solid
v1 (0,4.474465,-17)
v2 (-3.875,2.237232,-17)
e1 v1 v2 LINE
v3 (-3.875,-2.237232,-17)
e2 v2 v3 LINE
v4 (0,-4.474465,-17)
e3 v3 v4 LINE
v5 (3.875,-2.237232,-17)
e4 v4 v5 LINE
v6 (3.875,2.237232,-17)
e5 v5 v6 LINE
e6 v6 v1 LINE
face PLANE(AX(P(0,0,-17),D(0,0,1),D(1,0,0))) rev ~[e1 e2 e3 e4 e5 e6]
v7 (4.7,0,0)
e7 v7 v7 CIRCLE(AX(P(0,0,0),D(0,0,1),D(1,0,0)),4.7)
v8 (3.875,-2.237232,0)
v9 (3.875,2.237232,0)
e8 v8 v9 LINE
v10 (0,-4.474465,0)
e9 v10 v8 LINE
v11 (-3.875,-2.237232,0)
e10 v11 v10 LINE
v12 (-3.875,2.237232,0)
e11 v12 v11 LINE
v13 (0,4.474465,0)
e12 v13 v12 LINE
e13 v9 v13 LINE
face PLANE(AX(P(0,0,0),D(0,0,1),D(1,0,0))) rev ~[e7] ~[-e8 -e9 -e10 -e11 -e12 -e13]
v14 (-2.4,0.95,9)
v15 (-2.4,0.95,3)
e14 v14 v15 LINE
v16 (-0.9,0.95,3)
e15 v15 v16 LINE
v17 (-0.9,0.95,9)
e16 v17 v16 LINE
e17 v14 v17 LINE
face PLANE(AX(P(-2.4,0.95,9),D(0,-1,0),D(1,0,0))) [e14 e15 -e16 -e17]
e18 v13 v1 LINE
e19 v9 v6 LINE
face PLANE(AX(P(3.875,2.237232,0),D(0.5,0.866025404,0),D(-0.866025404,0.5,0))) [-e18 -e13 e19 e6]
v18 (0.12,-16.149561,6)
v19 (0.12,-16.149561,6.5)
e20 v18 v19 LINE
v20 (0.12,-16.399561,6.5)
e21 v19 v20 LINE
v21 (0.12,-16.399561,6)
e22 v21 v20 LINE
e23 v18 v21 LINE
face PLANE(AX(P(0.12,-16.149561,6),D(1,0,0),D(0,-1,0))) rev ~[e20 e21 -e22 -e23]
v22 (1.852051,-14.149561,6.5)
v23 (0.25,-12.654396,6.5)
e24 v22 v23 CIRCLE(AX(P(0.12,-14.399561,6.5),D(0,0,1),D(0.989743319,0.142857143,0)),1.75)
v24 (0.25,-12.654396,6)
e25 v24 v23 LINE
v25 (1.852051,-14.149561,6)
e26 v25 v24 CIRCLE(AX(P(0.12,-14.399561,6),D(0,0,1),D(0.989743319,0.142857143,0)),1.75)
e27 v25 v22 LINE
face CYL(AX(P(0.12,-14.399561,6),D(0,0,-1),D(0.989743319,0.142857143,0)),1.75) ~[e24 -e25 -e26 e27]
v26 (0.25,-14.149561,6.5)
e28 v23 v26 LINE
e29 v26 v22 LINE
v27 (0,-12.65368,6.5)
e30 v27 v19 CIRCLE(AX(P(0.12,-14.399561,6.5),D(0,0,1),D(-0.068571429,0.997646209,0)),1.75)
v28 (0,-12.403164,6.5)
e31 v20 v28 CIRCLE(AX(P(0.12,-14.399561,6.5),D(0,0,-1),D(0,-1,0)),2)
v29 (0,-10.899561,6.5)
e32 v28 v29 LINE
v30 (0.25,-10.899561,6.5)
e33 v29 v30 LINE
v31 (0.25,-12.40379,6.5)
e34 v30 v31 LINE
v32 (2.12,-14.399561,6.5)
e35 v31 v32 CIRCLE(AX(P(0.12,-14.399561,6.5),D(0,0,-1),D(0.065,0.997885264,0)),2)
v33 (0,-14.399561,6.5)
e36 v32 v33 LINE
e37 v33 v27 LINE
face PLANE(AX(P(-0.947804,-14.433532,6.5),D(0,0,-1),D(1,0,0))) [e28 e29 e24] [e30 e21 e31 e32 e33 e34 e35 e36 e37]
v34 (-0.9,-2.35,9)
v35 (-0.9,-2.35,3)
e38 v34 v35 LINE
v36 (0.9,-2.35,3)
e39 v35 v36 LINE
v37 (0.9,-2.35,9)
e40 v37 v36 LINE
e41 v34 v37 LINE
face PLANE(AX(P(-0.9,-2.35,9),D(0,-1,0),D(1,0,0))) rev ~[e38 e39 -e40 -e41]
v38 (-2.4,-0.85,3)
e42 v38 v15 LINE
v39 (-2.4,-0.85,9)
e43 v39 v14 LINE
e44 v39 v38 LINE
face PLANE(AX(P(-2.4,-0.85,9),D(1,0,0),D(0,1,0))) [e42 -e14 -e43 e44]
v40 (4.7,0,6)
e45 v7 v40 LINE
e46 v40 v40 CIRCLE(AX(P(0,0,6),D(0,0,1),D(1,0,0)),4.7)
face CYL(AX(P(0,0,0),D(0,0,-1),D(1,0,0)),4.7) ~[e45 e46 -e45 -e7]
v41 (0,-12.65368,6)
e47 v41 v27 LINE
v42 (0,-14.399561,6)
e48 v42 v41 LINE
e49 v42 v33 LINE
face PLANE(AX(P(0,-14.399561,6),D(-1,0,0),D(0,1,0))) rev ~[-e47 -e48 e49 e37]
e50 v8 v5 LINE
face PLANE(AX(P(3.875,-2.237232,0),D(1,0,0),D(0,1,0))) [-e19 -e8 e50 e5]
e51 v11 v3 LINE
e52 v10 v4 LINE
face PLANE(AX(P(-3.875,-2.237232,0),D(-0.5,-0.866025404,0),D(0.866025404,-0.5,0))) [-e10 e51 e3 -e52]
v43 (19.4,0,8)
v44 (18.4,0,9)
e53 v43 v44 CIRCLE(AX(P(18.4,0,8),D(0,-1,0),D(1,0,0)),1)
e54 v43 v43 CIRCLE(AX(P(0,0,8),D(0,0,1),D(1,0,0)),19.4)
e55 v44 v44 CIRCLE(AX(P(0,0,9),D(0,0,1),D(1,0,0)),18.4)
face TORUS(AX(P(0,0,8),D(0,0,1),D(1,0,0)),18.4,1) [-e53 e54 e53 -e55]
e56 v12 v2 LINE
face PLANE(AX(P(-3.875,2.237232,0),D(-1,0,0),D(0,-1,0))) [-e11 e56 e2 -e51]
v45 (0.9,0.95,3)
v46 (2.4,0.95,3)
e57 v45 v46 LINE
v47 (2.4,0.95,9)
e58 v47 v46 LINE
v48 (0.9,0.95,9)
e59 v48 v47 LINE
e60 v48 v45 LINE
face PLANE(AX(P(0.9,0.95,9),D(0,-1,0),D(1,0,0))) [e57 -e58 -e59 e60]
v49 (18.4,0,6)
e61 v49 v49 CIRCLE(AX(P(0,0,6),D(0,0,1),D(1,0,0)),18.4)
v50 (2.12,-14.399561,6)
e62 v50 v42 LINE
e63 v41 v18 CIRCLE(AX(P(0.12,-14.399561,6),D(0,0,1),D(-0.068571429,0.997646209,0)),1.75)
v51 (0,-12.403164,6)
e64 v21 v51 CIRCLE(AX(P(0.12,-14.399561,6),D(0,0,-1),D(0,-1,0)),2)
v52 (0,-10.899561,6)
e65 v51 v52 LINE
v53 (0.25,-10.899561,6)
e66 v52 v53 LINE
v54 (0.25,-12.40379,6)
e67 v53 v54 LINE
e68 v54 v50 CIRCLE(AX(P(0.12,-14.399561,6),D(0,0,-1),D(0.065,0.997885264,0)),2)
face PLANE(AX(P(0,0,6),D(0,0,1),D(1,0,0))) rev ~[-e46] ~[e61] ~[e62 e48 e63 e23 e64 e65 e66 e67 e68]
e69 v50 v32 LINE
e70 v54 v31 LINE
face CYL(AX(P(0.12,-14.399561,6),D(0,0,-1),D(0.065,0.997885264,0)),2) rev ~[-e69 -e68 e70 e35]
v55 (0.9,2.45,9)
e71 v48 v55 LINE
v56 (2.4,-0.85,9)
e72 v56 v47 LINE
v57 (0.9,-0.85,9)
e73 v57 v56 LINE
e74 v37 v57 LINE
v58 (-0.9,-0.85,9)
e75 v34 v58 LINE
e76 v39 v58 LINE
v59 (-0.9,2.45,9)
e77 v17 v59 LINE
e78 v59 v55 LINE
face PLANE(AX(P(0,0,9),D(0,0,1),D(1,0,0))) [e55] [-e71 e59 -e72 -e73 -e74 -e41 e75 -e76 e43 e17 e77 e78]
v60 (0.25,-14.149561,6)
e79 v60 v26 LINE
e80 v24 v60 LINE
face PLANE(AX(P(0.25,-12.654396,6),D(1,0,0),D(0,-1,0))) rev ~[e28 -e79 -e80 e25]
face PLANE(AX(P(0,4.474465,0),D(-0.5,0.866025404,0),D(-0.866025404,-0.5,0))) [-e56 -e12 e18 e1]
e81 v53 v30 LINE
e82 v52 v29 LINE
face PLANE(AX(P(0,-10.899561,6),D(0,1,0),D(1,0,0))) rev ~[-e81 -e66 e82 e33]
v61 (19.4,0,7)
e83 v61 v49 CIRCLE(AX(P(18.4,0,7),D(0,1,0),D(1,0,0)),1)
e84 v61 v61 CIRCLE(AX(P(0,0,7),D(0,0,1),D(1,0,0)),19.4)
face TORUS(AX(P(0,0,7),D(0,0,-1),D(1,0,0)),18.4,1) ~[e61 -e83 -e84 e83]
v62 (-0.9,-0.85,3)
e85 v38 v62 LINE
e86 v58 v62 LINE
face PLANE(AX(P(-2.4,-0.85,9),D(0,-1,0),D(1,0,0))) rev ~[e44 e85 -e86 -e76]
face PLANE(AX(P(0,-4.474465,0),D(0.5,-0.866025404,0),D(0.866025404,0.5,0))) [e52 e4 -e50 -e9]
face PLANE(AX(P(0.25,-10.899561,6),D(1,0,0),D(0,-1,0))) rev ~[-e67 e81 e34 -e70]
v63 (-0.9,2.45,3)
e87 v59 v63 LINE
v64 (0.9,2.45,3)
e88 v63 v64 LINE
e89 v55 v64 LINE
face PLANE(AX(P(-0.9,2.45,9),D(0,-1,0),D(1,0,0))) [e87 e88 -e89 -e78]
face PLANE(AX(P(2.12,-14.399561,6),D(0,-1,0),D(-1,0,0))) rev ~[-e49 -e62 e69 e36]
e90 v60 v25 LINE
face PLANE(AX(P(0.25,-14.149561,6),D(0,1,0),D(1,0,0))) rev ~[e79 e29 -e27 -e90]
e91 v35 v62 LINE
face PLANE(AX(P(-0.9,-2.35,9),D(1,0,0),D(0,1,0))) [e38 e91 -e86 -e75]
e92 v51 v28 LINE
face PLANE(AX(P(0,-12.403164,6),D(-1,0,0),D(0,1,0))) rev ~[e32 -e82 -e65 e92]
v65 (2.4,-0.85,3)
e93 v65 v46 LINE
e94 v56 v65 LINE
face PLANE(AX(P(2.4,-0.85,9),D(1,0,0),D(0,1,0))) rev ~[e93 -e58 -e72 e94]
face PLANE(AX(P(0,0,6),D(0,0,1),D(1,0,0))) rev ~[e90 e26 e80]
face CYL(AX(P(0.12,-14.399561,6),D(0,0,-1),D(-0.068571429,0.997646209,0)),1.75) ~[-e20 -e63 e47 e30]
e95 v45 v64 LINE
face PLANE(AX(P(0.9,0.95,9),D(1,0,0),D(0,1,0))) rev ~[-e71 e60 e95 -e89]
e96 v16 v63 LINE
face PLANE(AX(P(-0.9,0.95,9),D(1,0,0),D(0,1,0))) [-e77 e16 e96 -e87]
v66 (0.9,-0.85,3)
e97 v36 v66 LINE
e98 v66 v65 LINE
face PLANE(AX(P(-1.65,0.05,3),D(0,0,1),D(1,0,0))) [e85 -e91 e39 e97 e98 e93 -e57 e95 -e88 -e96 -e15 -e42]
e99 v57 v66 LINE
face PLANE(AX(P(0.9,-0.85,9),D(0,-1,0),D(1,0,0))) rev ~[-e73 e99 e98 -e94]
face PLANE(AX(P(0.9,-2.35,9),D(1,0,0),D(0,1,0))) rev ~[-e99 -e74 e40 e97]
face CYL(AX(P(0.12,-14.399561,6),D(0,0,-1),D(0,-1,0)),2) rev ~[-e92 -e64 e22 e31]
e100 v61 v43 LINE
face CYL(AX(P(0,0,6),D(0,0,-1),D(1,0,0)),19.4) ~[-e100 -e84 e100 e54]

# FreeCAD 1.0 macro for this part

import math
import FreeCAD as App
import Part
import Sketcher
from FreeCAD import Vector
Q = App.Units.Quantity


def edges_at(feature, points):
    """Names of the edges that pass closest to the given points."""
    edges = feature.Shape.Edges
    near = lambda p: min(range(len(edges)), key=lambda i: edges[i].distToShape(Part.Vertex(*p))[0])
    return sorted({f"Edge{near(p) + 1}" for p in points})

doc = App.newDocument("Part")
body = doc.addObject("PartDesign::Body", "Body")

sketch1 = doc.addObject("Sketcher::SketchObject", "Sketch")
body.addObject(sketch1)
sketch1.AttachmentSupport = (doc.XY_Plane, [""])
sketch1.MapMode = "FlatFace"
sketch1.addGeometry([
    Part.LineSegment(Vector(3.9, -2.2, 0), Vector(3.9, 2.2, 0)),
    Part.LineSegment(Vector(3.9, 2.2, 0), Vector(0, 4.5, 0)),
    Part.LineSegment(Vector(0, 4.5, 0), Vector(-3.9, 2.2, 0)),
    Part.LineSegment(Vector(-3.9, 2.2, 0), Vector(-3.9, -2.2, 0)),
    Part.LineSegment(Vector(-3.9, -2.2, 0), Vector(0, -4.5, 0)),
    Part.LineSegment(Vector(0, -4.5, 0), Vector(3.9, -2.2, 0)),
], False)
sketch1.addConstraint([
    Sketcher.Constraint("Coincident", 0, 2, 1, 1),
    Sketcher.Constraint("Coincident", 1, 2, 2, 1),
    Sketcher.Constraint("Coincident", 2, 2, 3, 1),
    Sketcher.Constraint("Coincident", 3, 2, 4, 1),
    Sketcher.Constraint("Coincident", 4, 2, 5, 1),
    Sketcher.Constraint("Coincident", 5, 2, 0, 1),
    Sketcher.Constraint("Vertical", 0),
    Sketcher.Constraint("Vertical", 3),
    Sketcher.Constraint("Symmetric", 0, 2, 3, 2, -1, 1),
    Sketcher.Constraint("Symmetric", 1, 2, 4, 2, -1, 1),
    Sketcher.Constraint("PointOnObject", 1, 2, -2),
    Sketcher.Constraint("Parallel", 2, 5),
    Sketcher.Constraint("Horizontal", 0, 2, 2, 2),
    Sketcher.Constraint("Angle", 1, Q("150 deg")),
    Sketcher.Constraint("DistanceX", 2, 2, 0, 2, 7.75),
    Sketcher.Constraint("DistanceY", 0, 1, 0, 2, 4.474465),
])
pad1 = doc.addObject("PartDesign::Pad", "Pad")
body.addObject(pad1)
pad1.Profile = sketch1
pad1.Length = 17
pad1.Reversed = True

sketch2 = doc.addObject("Sketcher::SketchObject", "Sketch001")
body.addObject(sketch2)
sketch2.AttachmentSupport = (doc.XY_Plane, [""])
sketch2.MapMode = "FlatFace"
sketch2.addGeometry(Part.Circle(Vector(0, 0, 0), Vector(0, 0, 1), 4.7), False)
sketch2.addConstraint([
    Sketcher.Constraint("Coincident", 0, 3, -1, 1),
    Sketcher.Constraint("Diameter", 0, 9.4),
])
pad2 = doc.addObject("PartDesign::Pad", "Pad001")
body.addObject(pad2)
pad2.Profile = sketch2
pad2.Length = 6

sketch3 = doc.addObject("Sketcher::SketchObject", "Sketch002")
body.addObject(sketch3)
sketch3.AttachmentSupport = (doc.XY_Plane, [""])
sketch3.MapMode = "FlatFace"
sketch3.AttachmentOffset = App.Placement(Vector(0, 0, 6), App.Rotation())
sketch3.addGeometry(Part.Circle(Vector(0, 0, 0), Vector(0, 0, 1), 19), False)
sketch3.addConstraint([
    Sketcher.Constraint("Coincident", 0, 3, -1, 1),
    Sketcher.Constraint("Diameter", 0, 38.8),
])
pad3 = doc.addObject("PartDesign::Pad", "Pad002")
body.addObject(pad3)
pad3.Profile = sketch3
pad3.Length = 3
doc.recompute()

fillet = doc.addObject("PartDesign::Fillet", "Fillet")
body.addObject(fillet)
fillet.Base = (pad3, edges_at(pad3, [(-19.4, 0, 6), (-19.4, 0, 9)]))
fillet.Radius = 1

sketch4 = doc.addObject("Sketcher::SketchObject", "Sketch003")
body.addObject(sketch4)
sketch4.AttachmentSupport = (doc.XY_Plane, [""])
sketch4.MapMode = "FlatFace"
sketch4.AttachmentOffset = App.Placement(Vector(0, 0, 9), App.Rotation())
sketch4.addGeometry([
    Part.LineSegment(Vector(-2.4, 0.9, 0), Vector(-2.4, -0.8, 0)),
    Part.LineSegment(Vector(-2.4, -0.8, 0), Vector(-0.9, -0.8, 0)),
    Part.LineSegment(Vector(-0.9, -0.8, 0), Vector(-0.9, -2.4, 0)),
    Part.LineSegment(Vector(-0.9, -2.4, 0), Vector(0.9, -2.4, 0)),
    Part.LineSegment(Vector(0.9, -2.4, 0), Vector(0.9, -0.8, 0)),
    Part.LineSegment(Vector(0.9, -0.8, 0), Vector(2.4, -0.8, 0)),
    Part.LineSegment(Vector(2.4, -0.8, 0), Vector(2.4, 0.9, 0)),
    Part.LineSegment(Vector(2.4, 0.9, 0), Vector(0.9, 0.9, 0)),
    Part.LineSegment(Vector(0.9, 0.9, 0), Vector(0.9, 2.5, 0)),
    Part.LineSegment(Vector(0.9, 2.5, 0), Vector(-0.9, 2.5, 0)),
    Part.LineSegment(Vector(-0.9, 2.5, 0), Vector(-0.9, 0.9, 0)),
    Part.LineSegment(Vector(-0.9, 0.9, 0), Vector(-2.4, 0.9, 0)),
], False)
sketch4.addConstraint([
    Sketcher.Constraint("Coincident", 0, 2, 1, 1),
    Sketcher.Constraint("Coincident", 1, 2, 2, 1),
    Sketcher.Constraint("Coincident", 2, 2, 3, 1),
    Sketcher.Constraint("Coincident", 3, 2, 4, 1),
    Sketcher.Constraint("Coincident", 4, 2, 5, 1),
    Sketcher.Constraint("Coincident", 5, 2, 6, 1),
    Sketcher.Constraint("Coincident", 6, 2, 7, 1),
    Sketcher.Constraint("Coincident", 7, 2, 8, 1),
    Sketcher.Constraint("Coincident", 8, 2, 9, 1),
    Sketcher.Constraint("Coincident", 9, 2, 10, 1),
    Sketcher.Constraint("Coincident", 10, 2, 11, 1),
    Sketcher.Constraint("Coincident", 11, 2, 0, 1),
    Sketcher.Constraint("Vertical", 0),
    Sketcher.Constraint("Horizontal", 1),
    Sketcher.Constraint("Vertical", 2),
    Sketcher.Constraint("Horizontal", 3),
    Sketcher.Constraint("Vertical", 4),
    Sketcher.Constraint("Horizontal", 5),
    Sketcher.Constraint("Vertical", 6),
    Sketcher.Constraint("Horizontal", 7),
    Sketcher.Constraint("Vertical", 8),
    Sketcher.Constraint("Horizontal", 9),
    Sketcher.Constraint("Vertical", 10),
    Sketcher.Constraint("Horizontal", 11),
    Sketcher.Constraint("Symmetric", 1, 2, 4, 2, -2),
    Sketcher.Constraint("Symmetric", 7, 2, 10, 2, -2),
    Sketcher.Constraint("Vertical", 4, 2, 7, 2),
    Sketcher.Constraint("Equal", 1, 5),
    Sketcher.Constraint("Equal", 9, 0),
    Sketcher.Constraint("Equal", 11, 2),
    Sketcher.Constraint("Equal", 4, 8),
    Sketcher.Constraint("DistanceX", 1, 1, 1, 2, 1.5),
    Sketcher.Constraint("DistanceX", 3, 1, 3, 2, 1.8),
    Sketcher.Constraint("DistanceY", 0, 2, -1, 1, 0.85),
])
pocket1 = doc.addObject("PartDesign::Pocket", "Pocket")
body.addObject(pocket1)
pocket1.Profile = sketch4
pocket1.Length = 6

sketch5 = doc.addObject("Sketcher::SketchObject", "Sketch004")
body.addObject(sketch5)
sketch5.AttachmentSupport = (doc.XY_Plane, [""])
sketch5.MapMode = "FlatFace"
sketch5.AttachmentOffset = App.Placement(Vector(0, 0, 6), App.Rotation())
sketch5.addGeometry([
    Part.LineSegment(Vector(0.12, -16.15, 0), Vector(0.12, -16.4, 0)),
    Part.ArcOfCircle(Part.Circle(Vector(0.12, -14.4, 0), Vector(0, 0, 1), 2), math.radians(93), math.radians(270)),
    Part.LineSegment(Vector(0, -12.4, 0), Vector(0, -10.9, 0)),
    Part.LineSegment(Vector(0, -10.9, 0), Vector(0.25, -10.9, 0)),
    Part.LineSegment(Vector(0.25, -10.9, 0), Vector(0.25, -12.4, 0)),
    Part.ArcOfCircle(Part.Circle(Vector(0.12, -14.4, 0), Vector(0, 0, 1), 2), math.radians(0), math.radians(86)),
    Part.LineSegment(Vector(2.12, -14.4, 0), Vector(0, -14.4, 0)),
    Part.LineSegment(Vector(0, -14.4, 0), Vector(0, -12.65, 0)),
    Part.ArcOfCircle(Part.Circle(Vector(0.12, -14.4, 0), Vector(0, 0, 1), 1.75), math.radians(94), math.radians(270)),
    Part.ArcOfCircle(Part.Circle(Vector(0.12, -14.4, 0), Vector(0, 0, 1), 1.75), math.radians(8), math.radians(86)),
    Part.LineSegment(Vector(0.25, -12.65, 0), Vector(0.25, -14.15, 0)),
    Part.LineSegment(Vector(0.25, -14.15, 0), Vector(1.85, -14.15, 0)),
], False)
sketch5.addConstraint([
    Sketcher.Constraint("Coincident", 0, 2, 1, 2),
    Sketcher.Constraint("Coincident", 1, 1, 2, 1),
    Sketcher.Constraint("Coincident", 2, 2, 3, 1),
    Sketcher.Constraint("Coincident", 3, 2, 4, 1),
    Sketcher.Constraint("Coincident", 4, 2, 5, 2),
    Sketcher.Constraint("Coincident", 5, 1, 6, 1),
    Sketcher.Constraint("Coincident", 6, 2, 7, 1),
    Sketcher.Constraint("Coincident", 7, 2, 8, 1),
    Sketcher.Constraint("Coincident", 8, 2, 0, 1),
    Sketcher.Constraint("Coincident", 9, 2, 10, 1),
    Sketcher.Constraint("Coincident", 10, 2, 11, 1),
    Sketcher.Constraint("Coincident", 11, 2, 9, 1),
    Sketcher.Constraint("Vertical", 0),
    Sketcher.Constraint("Vertical", 2),
    Sketcher.Constraint("Horizontal", 3),
    Sketcher.Constraint("Vertical", 4),
    Sketcher.Constraint("Horizontal", 6),
    Sketcher.Constraint("Vertical", 7),
    Sketcher.Constraint("Vertical", 10),
    Sketcher.Constraint("Horizontal", 11),
    Sketcher.Constraint("Coincident", 5, 3, 1, 3),
    Sketcher.Constraint("Coincident", 8, 3, 1, 3),
    Sketcher.Constraint("Coincident", 9, 3, 1, 3),
    Sketcher.Constraint("Equal", 1, 5),
    Sketcher.Constraint("Equal", 8, 9),
    Sketcher.Constraint("PointOnObject", 1, 1, -2),
    Sketcher.Constraint("PointOnObject", 6, 2, -2),
    Sketcher.Constraint("Horizontal", 9, 3, 5, 1),
    Sketcher.Constraint("Vertical", 9, 3, 0, 2),
    Sketcher.Constraint("Vertical", 4, 2, 9, 2),
    Sketcher.Constraint("Equal", 3, 0),
    Sketcher.Constraint("Radius", 1, 2.0),
    Sketcher.Constraint("Radius", 8, 1.75),
    Sketcher.Constraint("DistanceX", 6, 2, 6, 1, 2.12),
    Sketcher.Constraint("DistanceY", 1, 3, 2, 2, 3.5),
    Sketcher.Constraint("DistanceY", 1, 3, 10, 2, 0.25),
    Sketcher.Constraint("DistanceY", 1, 3, -1, 1, 14.399561),
])
pocket2 = doc.addObject("PartDesign::Pocket", "Pocket001")
body.addObject(pocket2)
pocket2.Profile = sketch5
pocket2.Length = 0.5
pocket2.Reversed = True

doc.recompute()
